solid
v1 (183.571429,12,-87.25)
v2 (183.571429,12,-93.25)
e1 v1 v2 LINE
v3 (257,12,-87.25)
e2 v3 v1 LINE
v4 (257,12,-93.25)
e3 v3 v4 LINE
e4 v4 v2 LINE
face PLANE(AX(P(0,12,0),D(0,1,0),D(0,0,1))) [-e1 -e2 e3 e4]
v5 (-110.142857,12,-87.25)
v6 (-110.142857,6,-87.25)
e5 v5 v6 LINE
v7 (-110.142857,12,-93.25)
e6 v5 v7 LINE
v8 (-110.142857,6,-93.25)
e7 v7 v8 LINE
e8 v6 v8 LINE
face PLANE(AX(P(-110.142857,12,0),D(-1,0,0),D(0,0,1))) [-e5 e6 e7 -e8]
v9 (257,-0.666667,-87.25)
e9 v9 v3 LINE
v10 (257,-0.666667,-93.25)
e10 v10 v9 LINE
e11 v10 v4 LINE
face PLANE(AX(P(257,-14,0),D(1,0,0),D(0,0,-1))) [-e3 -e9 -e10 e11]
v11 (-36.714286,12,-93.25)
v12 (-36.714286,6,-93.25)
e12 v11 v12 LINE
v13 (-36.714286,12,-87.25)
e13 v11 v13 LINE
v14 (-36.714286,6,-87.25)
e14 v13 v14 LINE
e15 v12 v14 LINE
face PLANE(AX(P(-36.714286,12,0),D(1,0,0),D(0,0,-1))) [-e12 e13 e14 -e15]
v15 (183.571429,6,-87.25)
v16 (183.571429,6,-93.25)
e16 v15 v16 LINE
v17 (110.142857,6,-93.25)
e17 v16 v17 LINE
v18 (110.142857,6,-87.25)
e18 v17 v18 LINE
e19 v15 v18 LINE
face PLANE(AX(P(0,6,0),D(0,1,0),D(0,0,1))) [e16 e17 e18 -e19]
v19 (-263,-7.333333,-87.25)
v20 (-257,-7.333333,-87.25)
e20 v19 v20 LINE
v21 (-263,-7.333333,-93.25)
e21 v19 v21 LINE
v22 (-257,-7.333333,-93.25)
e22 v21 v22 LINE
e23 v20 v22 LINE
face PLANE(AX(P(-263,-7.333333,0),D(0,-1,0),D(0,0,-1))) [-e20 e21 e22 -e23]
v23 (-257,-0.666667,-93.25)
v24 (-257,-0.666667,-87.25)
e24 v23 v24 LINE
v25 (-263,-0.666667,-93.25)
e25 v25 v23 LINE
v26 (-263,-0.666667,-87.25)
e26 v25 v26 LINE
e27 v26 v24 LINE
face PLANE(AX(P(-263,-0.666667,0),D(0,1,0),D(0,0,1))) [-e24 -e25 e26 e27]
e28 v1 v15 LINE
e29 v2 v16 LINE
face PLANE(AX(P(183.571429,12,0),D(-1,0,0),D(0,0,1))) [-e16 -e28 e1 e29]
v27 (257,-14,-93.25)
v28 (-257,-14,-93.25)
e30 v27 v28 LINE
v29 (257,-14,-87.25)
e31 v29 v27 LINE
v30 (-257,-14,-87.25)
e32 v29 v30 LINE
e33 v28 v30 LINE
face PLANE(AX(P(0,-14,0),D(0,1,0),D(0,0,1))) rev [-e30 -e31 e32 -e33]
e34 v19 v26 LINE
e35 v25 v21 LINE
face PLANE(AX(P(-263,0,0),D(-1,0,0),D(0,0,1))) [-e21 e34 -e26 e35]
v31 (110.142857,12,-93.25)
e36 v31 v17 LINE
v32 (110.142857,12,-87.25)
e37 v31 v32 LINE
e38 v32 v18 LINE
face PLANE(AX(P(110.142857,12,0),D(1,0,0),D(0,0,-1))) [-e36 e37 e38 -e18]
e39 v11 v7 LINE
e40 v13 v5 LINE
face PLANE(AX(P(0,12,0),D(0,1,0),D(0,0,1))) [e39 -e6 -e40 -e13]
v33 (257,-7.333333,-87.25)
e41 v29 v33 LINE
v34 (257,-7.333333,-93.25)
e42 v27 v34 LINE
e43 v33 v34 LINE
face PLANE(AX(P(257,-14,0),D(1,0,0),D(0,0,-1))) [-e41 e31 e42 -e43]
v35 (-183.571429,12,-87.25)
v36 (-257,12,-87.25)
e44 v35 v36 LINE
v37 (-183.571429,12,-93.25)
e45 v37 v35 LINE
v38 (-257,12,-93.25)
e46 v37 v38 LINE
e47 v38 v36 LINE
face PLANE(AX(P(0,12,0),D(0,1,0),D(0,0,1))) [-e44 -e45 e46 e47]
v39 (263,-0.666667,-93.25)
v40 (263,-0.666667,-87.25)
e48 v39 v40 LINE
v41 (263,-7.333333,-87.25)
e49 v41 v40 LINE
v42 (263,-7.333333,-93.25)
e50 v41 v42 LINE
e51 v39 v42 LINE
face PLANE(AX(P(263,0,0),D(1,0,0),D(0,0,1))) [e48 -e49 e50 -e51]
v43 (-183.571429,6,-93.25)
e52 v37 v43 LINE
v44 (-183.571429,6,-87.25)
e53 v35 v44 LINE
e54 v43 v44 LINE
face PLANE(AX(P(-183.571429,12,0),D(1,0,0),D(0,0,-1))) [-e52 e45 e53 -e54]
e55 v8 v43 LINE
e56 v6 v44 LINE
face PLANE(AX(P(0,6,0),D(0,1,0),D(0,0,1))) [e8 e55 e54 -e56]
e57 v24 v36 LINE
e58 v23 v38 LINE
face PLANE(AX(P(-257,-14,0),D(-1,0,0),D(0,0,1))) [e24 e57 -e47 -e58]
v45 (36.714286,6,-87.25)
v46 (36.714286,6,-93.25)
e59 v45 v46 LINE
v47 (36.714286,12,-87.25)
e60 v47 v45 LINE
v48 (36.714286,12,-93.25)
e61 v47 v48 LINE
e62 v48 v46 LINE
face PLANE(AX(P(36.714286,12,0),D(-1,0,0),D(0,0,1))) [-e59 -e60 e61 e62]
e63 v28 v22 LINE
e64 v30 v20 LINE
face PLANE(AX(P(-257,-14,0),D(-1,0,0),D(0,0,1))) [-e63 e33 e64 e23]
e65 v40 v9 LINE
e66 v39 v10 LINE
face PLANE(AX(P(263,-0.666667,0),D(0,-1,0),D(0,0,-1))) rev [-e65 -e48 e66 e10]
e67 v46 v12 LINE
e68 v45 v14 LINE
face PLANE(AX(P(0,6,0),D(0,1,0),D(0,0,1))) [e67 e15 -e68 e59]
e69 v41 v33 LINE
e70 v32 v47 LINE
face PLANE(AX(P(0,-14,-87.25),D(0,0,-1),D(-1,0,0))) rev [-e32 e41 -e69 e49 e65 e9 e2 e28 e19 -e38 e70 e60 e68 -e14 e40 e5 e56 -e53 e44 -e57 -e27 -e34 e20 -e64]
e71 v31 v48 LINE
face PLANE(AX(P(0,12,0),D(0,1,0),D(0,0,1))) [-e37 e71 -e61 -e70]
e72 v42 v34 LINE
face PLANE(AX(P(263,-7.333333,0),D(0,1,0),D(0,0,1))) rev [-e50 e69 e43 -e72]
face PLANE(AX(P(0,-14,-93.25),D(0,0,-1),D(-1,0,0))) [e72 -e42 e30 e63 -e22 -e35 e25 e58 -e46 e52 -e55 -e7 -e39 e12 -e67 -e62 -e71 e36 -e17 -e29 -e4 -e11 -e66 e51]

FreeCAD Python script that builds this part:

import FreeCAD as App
import Part
import Sketcher

V = App.Vector
Q = App.Units.Quantity


def add_polygon(sketch, points):
    """Adds a closed chain of lines whose ends are joined by coincident constraints."""
    first, n = sketch.GeometryCount, len(points)
    for a, b in zip(points, points[1:] + points[:1]):
        sketch.addGeometry(Part.LineSegment(App.Vector(*a, 0), App.Vector(*b, 0)), False)
    for i in range(n):
        sketch.addConstraint(Sketcher.Constraint("Coincident", first + i, 2, first + (i + 1) % n, 1))

doc = App.newDocument("Part")
body = doc.addObject("PartDesign::Body", "Body")

# Sketch on XZ plane
sketch1 = doc.addObject("Sketcher::SketchObject", "Sketch")
body.addObject(sketch1)
sketch1.AttachmentSupport = (doc.XZ_Plane, [""])
sketch1.MapMode = "FlatFace"
add_polygon(sketch1, [(-233, -63), (-233, 63), (233, 63), (233, -63)])  # lines 0-3
sketch1.addConstraint(Sketcher.Constraint("Vertical", 0))
sketch1.addConstraint(Sketcher.Constraint("Horizontal", 1))
sketch1.addConstraint(Sketcher.Constraint("Vertical", 2))
sketch1.addConstraint(Sketcher.Constraint("Horizontal", 3))
sketch1.addConstraint(Sketcher.Constraint("Symmetric", 0, 2, 2, 2, -1, 1))
sketch1.addConstraint(Sketcher.Constraint("DistanceX", 1, 1, 1, 2, Q("466 mm")))
sketch1.addConstraint(Sketcher.Constraint("DistanceY", 0, 1, 0, 2, Q("126.5 mm")))
pad1 = doc.addObject("PartDesign::Pad", "Pad")
body.addObject(pad1)
pad1.Profile = sketch1
pad1.Length = 6
pad1.Reversed = True

# Sketch on XZ plane
sketch2 = doc.addObject("Sketcher::SketchObject", "Sketch001")
body.addObject(sketch2)
sketch2.AttachmentSupport = (doc.XZ_Plane, [""])
sketch2.MapMode = "FlatFace"
add_polygon(sketch2, [(-233, -63), (-233, 63), (233, 63), (233, -63)])  # lines 0-3
sketch2.addConstraint(Sketcher.Constraint("Vertical", 0))
sketch2.addConstraint(Sketcher.Constraint("Horizontal", 1))
sketch2.addConstraint(Sketcher.Constraint("Vertical", 2))
sketch2.addConstraint(Sketcher.Constraint("Horizontal", 3))
sketch2.addConstraint(Sketcher.Constraint("Symmetric", 0, 2, 2, 2, -1, 1))
sketch2.addConstraint(Sketcher.Constraint("DistanceX", 1, 1, 1, 2, Q("466 mm")))
sketch2.addConstraint(Sketcher.Constraint("DistanceY", 0, 1, 0, 2, Q("126.5 mm")))
pocket1 = doc.addObject("PartDesign::Pocket", "Pocket")
body.addObject(pocket1)
pocket1.Profile = sketch2
pocket1.Type = "ThroughAll"
pocket1.Midplane = True
body2 = doc.addObject("PartDesign::Body", "Body001")

# Sketch on XZ plane
sketch3 = doc.addObject("Sketcher::SketchObject", "Sketch002")
body2.addObject(sketch3)
sketch3.AttachmentSupport = (doc.getObject("XZ_Plane001"), [""])
sketch3.MapMode = "FlatFace"
sketch3.AttachmentOffset = App.Placement(V(0, 0, -6), App.Rotation())
add_polygon(sketch3, [(-257, -93), (-257, -87), (257, -87), (257, -93)])  # lines 0-3
sketch3.addConstraint(Sketcher.Constraint("Vertical", 0))
sketch3.addConstraint(Sketcher.Constraint("Horizontal", 1))
sketch3.addConstraint(Sketcher.Constraint("Vertical", 2))
sketch3.addConstraint(Sketcher.Constraint("Horizontal", 3))
sketch3.addConstraint(Sketcher.Constraint("DistanceX", 1, 1, 1, 2, Q("514 mm")))
sketch3.addConstraint(Sketcher.Constraint("DistanceY", 0, 1, 0, 2, Q("6 mm")))
sketch3.addConstraint(Sketcher.Constraint("DistanceX", 0, 2, -1, 1, Q("257 mm")))
sketch3.addConstraint(Sketcher.Constraint("DistanceY", 0, 2, -1, 1, Q("87.25 mm")))
pad2 = doc.addObject("PartDesign::Pad", "Pad001")
body2.addObject(pad2)
pad2.Profile = sketch3
pad2.Length = 20

# Sketch on XZ plane
sketch4 = doc.addObject("Sketcher::SketchObject", "Sketch003")
body2.addObject(sketch4)
sketch4.AttachmentSupport = (doc.getObject("XZ_Plane001"), [""])
sketch4.MapMode = "FlatFace"
sketch4.AttachmentOffset = App.Placement(V(0, 0, -6), App.Rotation())
add_polygon(sketch4, [(184, -93), (184, -87), (257, -87), (257, -93)])  # lines 0-3
add_polygon(sketch4, [(37, -93), (37, -87), (110, -87), (110, -93)])  # lines 4-7
add_polygon(sketch4, [(-110, -93), (-110, -87), (-37, -87), (-37, -93)])  # lines 8-11
add_polygon(sketch4, [(-257, -93), (-257, -87), (-184, -87), (-184, -93)])  # lines 12-15
sketch4.addConstraint(Sketcher.Constraint("Vertical", 0))
sketch4.addConstraint(Sketcher.Constraint("Horizontal", 1))
sketch4.addConstraint(Sketcher.Constraint("Vertical", 2))
sketch4.addConstraint(Sketcher.Constraint("Horizontal", 3))
sketch4.addConstraint(Sketcher.Constraint("Vertical", 4))
sketch4.addConstraint(Sketcher.Constraint("Horizontal", 5))
sketch4.addConstraint(Sketcher.Constraint("Vertical", 6))
sketch4.addConstraint(Sketcher.Constraint("Horizontal", 7))
sketch4.addConstraint(Sketcher.Constraint("Vertical", 8))
sketch4.addConstraint(Sketcher.Constraint("Horizontal", 9))
sketch4.addConstraint(Sketcher.Constraint("Vertical", 10))
sketch4.addConstraint(Sketcher.Constraint("Horizontal", 11))
sketch4.addConstraint(Sketcher.Constraint("Vertical", 12))
sketch4.addConstraint(Sketcher.Constraint("Horizontal", 13))
sketch4.addConstraint(Sketcher.Constraint("Vertical", 14))
sketch4.addConstraint(Sketcher.Constraint("Horizontal", 15))
sketch4.addConstraint(Sketcher.Constraint("Symmetric", 5, 2, 8, 2, -2))
sketch4.addConstraint(Sketcher.Constraint("Symmetric", 7, 2, 10, 2, -2))
sketch4.addConstraint(Sketcher.Constraint("Symmetric", 1, 2, 12, 2, -2))
sketch4.addConstraint(Sketcher.Constraint("Symmetric", 3, 2, 14, 2, -2))
sketch4.addConstraint(Sketcher.Constraint("Horizontal", 1, 2, 4, 2))
sketch4.addConstraint(Sketcher.Constraint("Horizontal", 3, 2, 6, 2))
sketch4.addConstraint(Sketcher.Constraint("Equal", 3, 5))
sketch4.addConstraint(Sketcher.Constraint("DistanceY", 0, 1, 0, 2, Q("6 mm")))
sketch4.addConstraint(Sketcher.Constraint("DistanceX", -1, 1, 1, 2, Q("257 mm")))
sketch4.addConstraint(Sketcher.Constraint("DistanceY", 0, 2, -1, 1, Q("87.25 mm")))
sketch4.addConstraint(Sketcher.Constraint("DistanceX", 1, 1, 1, 2, Q("73.428571 mm")))
sketch4.addConstraint(Sketcher.Constraint("DistanceX", 5, 2, 0, 2, Q("73.428571 mm")))
pad3 = doc.addObject("PartDesign::Pad", "Pad002")
body2.addObject(pad3)
pad3.Profile = sketch4
pad3.Length = 6
pad3.Reversed = True

# Sketch on YZ plane
sketch5 = doc.addObject("Sketcher::SketchObject", "Sketch004")
body2.addObject(sketch5)
sketch5.AttachmentSupport = (doc.getObject("YZ_Plane001"), [""])
sketch5.MapMode = "FlatFace"
sketch5.AttachmentOffset = App.Placement(V(0, 0, -257), App.Rotation())
add_polygon(sketch5, [(-1, -93), (-7, -93), (-7, -87), (-1, -87)])  # lines 0-3
sketch5.addConstraint(Sketcher.Constraint("Horizontal", 0))
sketch5.addConstraint(Sketcher.Constraint("Vertical", 1))
sketch5.addConstraint(Sketcher.Constraint("Horizontal", 2))
sketch5.addConstraint(Sketcher.Constraint("Vertical", 3))
sketch5.addConstraint(Sketcher.Constraint("DistanceY", 1, 1, 1, 2, Q("6 mm")))
sketch5.addConstraint(Sketcher.Constraint("DistanceY", 0, 2, -1, 1, Q("93.25 mm")))
sketch5.addConstraint(Sketcher.Constraint("DistanceX", 0, 2, 0, 1, Q("6.666667 mm")))
sketch5.addConstraint(Sketcher.Constraint("DistanceX", 0, 2, -1, 1, Q("7.333333 mm")))
pad4 = doc.addObject("PartDesign::Pad", "Pad003")
body2.addObject(pad4)
pad4.Profile = sketch5
pad4.Length = 6
pad4.Reversed = True
doc.recompute()

mirrored = doc.addObject("PartDesign::Mirrored", "Mirrored")
body2.addObject(mirrored)
mirrored.Originals = [pad4]
mirrored.MirrorPlane = (doc.getObject("YZ_Plane001"), [""])
body2.Tip = mirrored

doc.recompute()
